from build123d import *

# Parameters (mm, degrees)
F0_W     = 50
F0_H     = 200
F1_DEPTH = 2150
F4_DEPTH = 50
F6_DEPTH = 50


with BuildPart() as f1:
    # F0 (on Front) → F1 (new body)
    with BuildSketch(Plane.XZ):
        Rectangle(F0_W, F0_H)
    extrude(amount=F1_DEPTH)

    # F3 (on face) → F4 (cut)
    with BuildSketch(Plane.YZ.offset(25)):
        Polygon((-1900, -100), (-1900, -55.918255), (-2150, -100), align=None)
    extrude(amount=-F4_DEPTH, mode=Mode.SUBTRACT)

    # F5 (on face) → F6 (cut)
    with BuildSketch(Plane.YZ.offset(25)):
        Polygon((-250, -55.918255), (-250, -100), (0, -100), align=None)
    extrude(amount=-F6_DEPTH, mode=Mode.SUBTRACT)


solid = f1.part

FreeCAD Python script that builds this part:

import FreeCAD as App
import Part
import Sketcher
Q = App.Units.Quantity

doc = App.newDocument("Part")
body = doc.addObject("PartDesign::Body", "Body")

# Sketch on XZ plane
sketch1 = doc.addObject("Sketcher::SketchObject", "Sketch")
body.addObject(sketch1)
sketch1.AttachmentSupport = (doc.XZ_Plane, [""])
sketch1.MapMode = "FlatFace"
sketch1.addGeometry([
    Part.LineSegment(App.Vector(-25, 100, 0), App.Vector(-25, -100, 0)),
    Part.LineSegment(App.Vector(-25, -100, 0), App.Vector(25, -100, 0)),
    Part.LineSegment(App.Vector(25, -100, 0), App.Vector(25, 100, 0)),
    Part.LineSegment(App.Vector(25, 100, 0), App.Vector(-25, 100, 0)),
], False)
sketch1.addConstraint([
    Sketcher.Constraint("Coincident", 0, 2, 1, 1),
    Sketcher.Constraint("Coincident", 1, 2, 2, 1),
    Sketcher.Constraint("Coincident", 2, 2, 3, 1),
    Sketcher.Constraint("Coincident", 3, 2, 0, 1),
    Sketcher.Constraint("Vertical", 0),
    Sketcher.Constraint("Horizontal", 1),
    Sketcher.Constraint("Vertical", 2),
    Sketcher.Constraint("Horizontal", 3),
    Sketcher.Constraint("Symmetric", 0, 2, 2, 2, -1, 1),
    Sketcher.Constraint("DistanceX", 1, 1, 1, 2, 50.0),
    Sketcher.Constraint("DistanceY", 0, 2, 0, 1, 200.0),
])
pad1 = doc.addObject("PartDesign::Pad", "Pad")
body.addObject(pad1)
pad1.Profile = sketch1
pad1.Length = 2150

# Sketch on YZ plane
sketch2 = doc.addObject("Sketcher::SketchObject", "Sketch001")
body.addObject(sketch2)
sketch2.AttachmentSupport = (doc.YZ_Plane, [""])
sketch2.MapMode = "FlatFace"
sketch2.AttachmentOffset = App.Placement(App.Vector(0, 0, 25), App.Rotation())
sketch2.addGeometry([
    Part.LineSegment(App.Vector(-1900, -100, 0), App.Vector(-1900, -55.918255, 0)),
    Part.LineSegment(App.Vector(-1900, -55.918255, 0), App.Vector(-2150, -100, 0)),
    Part.LineSegment(App.Vector(-2150, -100, 0), App.Vector(-1900, -100, 0)),
], False)
sketch2.addConstraint([
    Sketcher.Constraint("Coincident", 0, 2, 1, 1),
    Sketcher.Constraint("Coincident", 1, 2, 2, 1),
    Sketcher.Constraint("Coincident", 2, 2, 0, 1),
    Sketcher.Constraint("Vertical", 0),
    Sketcher.Constraint("Horizontal", 2),
    Sketcher.Constraint("DistanceX", 2, 1, 2, 2, 250.0),
    Sketcher.Constraint("Angle", 1, Q("-170 deg")),
    Sketcher.Constraint("DistanceX", 0, 2, -1, 1, 1900.0),
    Sketcher.Constraint("DistanceY", 1, 2, -1, 1, 100.0),
])
pocket1 = doc.addObject("PartDesign::Pocket", "Pocket")
body.addObject(pocket1)
pocket1.Profile = sketch2
pocket1.Length = 50

# Sketch on YZ plane
sketch3 = doc.addObject("Sketcher::SketchObject", "Sketch002")
body.addObject(sketch3)
sketch3.AttachmentSupport = (doc.YZ_Plane, [""])
sketch3.MapMode = "FlatFace"
sketch3.AttachmentOffset = App.Placement(App.Vector(0, 0, 25), App.Rotation())
sketch3.addGeometry([
    Part.LineSegment(App.Vector(-250, -55.918255, 0), App.Vector(-250, -100, 0)),
    Part.LineSegment(App.Vector(-250, -100, 0), App.Vector(0, -100, 0)),
    Part.LineSegment(App.Vector(0, -100, 0), App.Vector(-250, -55.918255, 0)),
], False)
sketch3.addConstraint([
    Sketcher.Constraint("Coincident", 0, 2, 1, 1),
    Sketcher.Constraint("Coincident", 1, 2, 2, 1),
    Sketcher.Constraint("Coincident", 2, 2, 0, 1),
    Sketcher.Constraint("Vertical", 0),
    Sketcher.Constraint("Horizontal", 1),
    Sketcher.Constraint("PointOnObject", 1, 2, -2),
    Sketcher.Constraint("DistanceX", 1, 1, 1, 2, 250.0),
    Sketcher.Constraint("Angle", 2, Q("170 deg")),
    Sketcher.Constraint("DistanceY", 0, 2, -1, 1, 100.0),
])
pocket2 = doc.addObject("PartDesign::Pocket", "Pocket001")
body.addObject(pocket2)
pocket2.Profile = sketch3
pocket2.Length = 50

doc.recompute()
